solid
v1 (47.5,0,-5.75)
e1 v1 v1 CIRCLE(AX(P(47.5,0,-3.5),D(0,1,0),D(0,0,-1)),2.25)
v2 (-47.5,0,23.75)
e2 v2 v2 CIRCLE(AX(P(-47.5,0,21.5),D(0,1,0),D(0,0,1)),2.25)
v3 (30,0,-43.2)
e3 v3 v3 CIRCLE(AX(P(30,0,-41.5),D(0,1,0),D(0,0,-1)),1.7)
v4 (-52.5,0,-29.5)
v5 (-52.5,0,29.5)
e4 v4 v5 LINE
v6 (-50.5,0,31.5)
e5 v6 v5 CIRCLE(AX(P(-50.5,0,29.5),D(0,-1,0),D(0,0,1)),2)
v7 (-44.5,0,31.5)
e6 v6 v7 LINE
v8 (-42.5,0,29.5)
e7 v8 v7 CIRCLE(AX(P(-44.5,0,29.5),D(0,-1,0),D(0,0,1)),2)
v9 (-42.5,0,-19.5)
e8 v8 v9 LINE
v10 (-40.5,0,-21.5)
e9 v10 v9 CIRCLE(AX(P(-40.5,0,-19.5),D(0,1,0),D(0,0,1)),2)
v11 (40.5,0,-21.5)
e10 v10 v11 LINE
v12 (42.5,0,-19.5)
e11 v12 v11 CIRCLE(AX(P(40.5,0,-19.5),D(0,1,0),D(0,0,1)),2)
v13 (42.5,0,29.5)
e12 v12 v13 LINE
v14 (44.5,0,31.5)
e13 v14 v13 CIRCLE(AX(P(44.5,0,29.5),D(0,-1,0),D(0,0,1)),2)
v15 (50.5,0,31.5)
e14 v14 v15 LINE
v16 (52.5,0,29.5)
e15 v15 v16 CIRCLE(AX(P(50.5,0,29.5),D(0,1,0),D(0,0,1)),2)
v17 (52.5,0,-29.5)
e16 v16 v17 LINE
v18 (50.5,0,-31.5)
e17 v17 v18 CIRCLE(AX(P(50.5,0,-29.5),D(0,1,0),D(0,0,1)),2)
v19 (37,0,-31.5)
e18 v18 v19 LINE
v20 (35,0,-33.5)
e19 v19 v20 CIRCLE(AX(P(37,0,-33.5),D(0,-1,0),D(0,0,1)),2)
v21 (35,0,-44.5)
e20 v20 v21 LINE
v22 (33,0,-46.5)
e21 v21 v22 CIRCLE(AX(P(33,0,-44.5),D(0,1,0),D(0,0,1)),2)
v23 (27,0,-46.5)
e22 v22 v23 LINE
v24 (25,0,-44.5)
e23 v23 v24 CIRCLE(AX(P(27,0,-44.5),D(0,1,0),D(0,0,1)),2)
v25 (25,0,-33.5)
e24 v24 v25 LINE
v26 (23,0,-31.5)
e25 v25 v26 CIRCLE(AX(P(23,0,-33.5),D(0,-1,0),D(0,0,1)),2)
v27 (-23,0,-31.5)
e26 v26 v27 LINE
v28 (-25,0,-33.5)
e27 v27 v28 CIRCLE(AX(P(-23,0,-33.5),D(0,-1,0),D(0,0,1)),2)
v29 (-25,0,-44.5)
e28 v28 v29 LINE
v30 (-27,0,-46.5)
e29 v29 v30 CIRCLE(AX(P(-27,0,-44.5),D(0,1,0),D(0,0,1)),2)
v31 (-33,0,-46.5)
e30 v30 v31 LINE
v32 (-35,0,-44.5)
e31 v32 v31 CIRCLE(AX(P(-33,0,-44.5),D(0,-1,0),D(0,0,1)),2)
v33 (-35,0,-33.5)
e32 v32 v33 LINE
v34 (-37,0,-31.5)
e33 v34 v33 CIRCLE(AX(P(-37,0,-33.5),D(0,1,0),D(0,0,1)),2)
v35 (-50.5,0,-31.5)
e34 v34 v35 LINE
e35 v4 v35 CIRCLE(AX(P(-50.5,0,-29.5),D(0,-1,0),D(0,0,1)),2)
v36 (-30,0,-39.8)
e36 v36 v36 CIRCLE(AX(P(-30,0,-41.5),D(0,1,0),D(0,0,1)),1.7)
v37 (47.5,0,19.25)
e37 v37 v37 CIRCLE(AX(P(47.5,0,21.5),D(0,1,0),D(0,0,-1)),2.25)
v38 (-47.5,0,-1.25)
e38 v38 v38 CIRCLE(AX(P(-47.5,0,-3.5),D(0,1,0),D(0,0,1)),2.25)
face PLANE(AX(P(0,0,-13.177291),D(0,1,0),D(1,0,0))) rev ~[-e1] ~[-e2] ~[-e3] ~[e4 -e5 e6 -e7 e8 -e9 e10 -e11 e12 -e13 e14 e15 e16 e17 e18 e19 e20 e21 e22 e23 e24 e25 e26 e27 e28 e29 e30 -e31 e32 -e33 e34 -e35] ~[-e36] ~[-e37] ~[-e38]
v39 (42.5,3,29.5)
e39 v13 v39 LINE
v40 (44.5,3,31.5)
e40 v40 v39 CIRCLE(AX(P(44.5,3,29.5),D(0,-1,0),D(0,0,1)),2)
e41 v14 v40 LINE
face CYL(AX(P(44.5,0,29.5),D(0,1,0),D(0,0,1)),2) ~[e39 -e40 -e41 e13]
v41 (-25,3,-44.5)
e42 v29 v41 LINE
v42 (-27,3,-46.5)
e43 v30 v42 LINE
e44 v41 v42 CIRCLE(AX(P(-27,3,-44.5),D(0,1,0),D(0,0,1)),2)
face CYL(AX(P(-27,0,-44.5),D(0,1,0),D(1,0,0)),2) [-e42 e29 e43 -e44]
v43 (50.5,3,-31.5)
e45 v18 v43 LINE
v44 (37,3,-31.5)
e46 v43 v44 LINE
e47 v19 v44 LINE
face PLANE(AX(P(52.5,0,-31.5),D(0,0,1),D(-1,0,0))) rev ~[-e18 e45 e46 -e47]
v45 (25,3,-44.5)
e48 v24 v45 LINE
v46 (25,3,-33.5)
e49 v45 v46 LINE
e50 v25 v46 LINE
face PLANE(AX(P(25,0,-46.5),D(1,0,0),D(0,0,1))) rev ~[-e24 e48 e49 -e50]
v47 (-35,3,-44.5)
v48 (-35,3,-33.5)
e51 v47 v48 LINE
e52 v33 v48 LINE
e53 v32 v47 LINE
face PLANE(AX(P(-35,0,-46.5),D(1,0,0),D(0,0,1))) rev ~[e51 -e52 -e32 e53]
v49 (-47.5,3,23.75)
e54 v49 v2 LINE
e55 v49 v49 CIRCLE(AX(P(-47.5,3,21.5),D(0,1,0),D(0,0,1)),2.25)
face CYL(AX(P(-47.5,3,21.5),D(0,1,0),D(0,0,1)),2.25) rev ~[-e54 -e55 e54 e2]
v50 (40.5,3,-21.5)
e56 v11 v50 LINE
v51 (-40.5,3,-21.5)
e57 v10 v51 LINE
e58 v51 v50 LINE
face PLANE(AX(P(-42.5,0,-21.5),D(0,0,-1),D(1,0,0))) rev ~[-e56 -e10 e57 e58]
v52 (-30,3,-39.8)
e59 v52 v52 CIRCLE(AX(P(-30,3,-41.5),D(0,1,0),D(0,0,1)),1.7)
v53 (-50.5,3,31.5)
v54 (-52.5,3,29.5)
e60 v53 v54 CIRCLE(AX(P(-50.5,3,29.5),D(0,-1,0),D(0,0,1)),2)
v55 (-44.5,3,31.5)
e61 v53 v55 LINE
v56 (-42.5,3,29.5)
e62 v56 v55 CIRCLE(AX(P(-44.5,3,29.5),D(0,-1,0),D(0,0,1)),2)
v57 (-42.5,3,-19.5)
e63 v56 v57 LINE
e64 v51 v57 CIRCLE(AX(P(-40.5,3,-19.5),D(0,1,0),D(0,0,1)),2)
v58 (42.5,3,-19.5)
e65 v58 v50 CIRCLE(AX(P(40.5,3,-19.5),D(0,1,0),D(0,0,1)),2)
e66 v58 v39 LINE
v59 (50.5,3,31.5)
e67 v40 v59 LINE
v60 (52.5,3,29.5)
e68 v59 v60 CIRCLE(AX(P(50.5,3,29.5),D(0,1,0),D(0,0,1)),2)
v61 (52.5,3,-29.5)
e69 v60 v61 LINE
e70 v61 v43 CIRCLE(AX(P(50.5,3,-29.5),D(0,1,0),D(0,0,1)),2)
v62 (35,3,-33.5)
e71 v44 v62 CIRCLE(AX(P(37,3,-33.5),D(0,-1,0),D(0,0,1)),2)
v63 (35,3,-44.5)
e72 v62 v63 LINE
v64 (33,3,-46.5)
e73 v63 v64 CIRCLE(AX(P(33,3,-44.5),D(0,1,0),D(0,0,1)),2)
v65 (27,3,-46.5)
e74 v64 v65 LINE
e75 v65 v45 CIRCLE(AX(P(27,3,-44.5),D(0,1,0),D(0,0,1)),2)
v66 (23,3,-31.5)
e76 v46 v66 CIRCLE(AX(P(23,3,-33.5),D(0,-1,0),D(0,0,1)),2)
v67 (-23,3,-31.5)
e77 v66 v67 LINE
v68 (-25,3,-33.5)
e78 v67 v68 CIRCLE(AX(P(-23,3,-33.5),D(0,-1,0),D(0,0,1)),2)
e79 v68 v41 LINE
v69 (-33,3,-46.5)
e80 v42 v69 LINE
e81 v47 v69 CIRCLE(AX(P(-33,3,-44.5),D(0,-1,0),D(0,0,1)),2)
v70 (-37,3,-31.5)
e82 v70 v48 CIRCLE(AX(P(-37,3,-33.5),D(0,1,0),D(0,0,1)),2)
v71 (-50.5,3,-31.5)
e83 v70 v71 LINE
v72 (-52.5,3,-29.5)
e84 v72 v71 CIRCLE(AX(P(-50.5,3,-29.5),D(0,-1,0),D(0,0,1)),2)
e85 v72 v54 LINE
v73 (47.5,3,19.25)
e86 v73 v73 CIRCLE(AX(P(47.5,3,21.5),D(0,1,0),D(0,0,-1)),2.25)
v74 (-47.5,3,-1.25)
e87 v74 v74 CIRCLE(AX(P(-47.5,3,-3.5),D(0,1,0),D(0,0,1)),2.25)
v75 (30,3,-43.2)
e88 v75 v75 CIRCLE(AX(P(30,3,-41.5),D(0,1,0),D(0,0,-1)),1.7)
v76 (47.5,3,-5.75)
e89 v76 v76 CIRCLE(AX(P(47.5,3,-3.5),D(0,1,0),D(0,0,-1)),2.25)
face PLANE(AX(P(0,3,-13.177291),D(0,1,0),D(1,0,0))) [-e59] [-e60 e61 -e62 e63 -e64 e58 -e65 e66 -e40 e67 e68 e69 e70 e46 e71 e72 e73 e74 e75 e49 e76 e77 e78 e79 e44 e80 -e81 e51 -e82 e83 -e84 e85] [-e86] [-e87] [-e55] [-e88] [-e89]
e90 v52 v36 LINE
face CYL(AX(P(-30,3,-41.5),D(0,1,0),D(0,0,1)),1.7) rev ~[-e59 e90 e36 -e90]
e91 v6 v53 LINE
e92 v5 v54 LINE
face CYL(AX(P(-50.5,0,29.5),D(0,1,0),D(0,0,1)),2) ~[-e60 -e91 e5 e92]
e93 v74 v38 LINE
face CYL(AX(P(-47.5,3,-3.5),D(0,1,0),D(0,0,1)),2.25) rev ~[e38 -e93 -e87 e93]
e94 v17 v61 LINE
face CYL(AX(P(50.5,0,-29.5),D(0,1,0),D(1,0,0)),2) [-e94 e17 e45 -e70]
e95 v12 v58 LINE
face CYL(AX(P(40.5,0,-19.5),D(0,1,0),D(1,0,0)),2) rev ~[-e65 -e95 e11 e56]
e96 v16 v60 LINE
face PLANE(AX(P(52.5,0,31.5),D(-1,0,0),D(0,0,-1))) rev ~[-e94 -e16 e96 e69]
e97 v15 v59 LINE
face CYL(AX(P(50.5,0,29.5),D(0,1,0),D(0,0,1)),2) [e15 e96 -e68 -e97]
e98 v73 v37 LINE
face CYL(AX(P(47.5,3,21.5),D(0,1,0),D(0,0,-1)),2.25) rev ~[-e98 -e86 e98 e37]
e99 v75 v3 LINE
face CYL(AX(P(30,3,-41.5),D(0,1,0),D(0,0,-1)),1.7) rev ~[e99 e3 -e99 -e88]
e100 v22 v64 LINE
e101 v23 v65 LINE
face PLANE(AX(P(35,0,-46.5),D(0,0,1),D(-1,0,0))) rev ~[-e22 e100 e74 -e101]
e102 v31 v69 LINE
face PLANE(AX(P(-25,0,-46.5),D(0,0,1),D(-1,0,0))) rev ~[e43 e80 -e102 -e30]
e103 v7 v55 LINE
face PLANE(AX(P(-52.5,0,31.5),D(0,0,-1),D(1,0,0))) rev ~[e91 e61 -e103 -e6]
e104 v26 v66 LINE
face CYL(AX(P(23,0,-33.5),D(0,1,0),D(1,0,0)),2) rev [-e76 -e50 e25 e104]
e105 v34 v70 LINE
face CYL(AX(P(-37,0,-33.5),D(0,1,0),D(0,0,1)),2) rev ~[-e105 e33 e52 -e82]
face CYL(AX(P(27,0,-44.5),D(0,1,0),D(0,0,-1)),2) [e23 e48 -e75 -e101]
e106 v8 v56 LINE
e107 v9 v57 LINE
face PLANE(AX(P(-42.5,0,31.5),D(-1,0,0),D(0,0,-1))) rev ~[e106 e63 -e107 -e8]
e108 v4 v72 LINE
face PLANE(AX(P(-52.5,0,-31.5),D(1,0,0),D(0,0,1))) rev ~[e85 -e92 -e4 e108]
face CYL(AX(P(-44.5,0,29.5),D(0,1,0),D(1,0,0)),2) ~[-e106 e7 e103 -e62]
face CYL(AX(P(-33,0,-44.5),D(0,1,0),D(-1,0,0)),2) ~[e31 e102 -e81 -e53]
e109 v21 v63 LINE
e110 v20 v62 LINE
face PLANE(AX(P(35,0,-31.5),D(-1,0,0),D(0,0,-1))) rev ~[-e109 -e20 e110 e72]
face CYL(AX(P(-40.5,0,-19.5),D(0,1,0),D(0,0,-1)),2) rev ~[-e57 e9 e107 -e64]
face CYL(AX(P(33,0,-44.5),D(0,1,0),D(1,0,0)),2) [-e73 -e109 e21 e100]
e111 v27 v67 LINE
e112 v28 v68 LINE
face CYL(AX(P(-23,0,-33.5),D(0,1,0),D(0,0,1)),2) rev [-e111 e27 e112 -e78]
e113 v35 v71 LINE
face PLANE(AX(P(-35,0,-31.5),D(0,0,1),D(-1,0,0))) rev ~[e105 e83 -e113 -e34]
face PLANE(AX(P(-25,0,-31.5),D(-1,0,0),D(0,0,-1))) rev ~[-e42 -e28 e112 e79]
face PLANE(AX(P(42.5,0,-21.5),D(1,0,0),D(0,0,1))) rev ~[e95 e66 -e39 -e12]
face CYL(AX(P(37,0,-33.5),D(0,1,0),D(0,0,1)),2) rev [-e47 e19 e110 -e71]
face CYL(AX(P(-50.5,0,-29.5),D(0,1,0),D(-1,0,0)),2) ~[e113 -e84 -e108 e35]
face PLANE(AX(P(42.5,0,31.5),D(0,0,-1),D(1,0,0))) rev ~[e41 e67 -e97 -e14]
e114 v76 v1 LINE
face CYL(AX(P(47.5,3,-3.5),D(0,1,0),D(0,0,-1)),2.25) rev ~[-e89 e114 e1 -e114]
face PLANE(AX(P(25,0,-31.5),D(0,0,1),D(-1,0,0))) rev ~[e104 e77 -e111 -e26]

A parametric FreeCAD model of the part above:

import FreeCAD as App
import Part
import Sketcher
Q = App.Units.Quantity


def edges_at(feature, points):
    """Names of the edges that pass closest to the given points."""
    edges = feature.Shape.Edges
    near = lambda p: min(range(len(edges)), key=lambda i: edges[i].distToShape(Part.Vertex(*p))[0])
    return sorted({f"Edge{near(p) + 1}" for p in points})

doc = App.newDocument("Part")
body = doc.addObject("PartDesign::Body", "Body")

# Sketch on XZ plane
sketch1 = body.newObject("Sketcher::SketchObject", "Sketch")
sketch1.AttachmentSupport = (doc.getObject("XZ_Plane"), [""])
sketch1.MapMode = "FlatFace"
sketch1.addGeometry(Part.LineSegment(App.Vector(42, 32, 0), App.Vector(52, 32, 0)), False)
sketch1.addGeometry(Part.LineSegment(App.Vector(52, 32, 0), App.Vector(52, -32, 0)), False)
sketch1.addGeometry(Part.LineSegment(App.Vector(52, -32, 0), App.Vector(35, -32, 0)), False)
sketch1.addGeometry(Part.LineSegment(App.Vector(35, -32, 0), App.Vector(35, -46, 0)), False)
sketch1.addGeometry(Part.LineSegment(App.Vector(35, -46, 0), App.Vector(25, -46, 0)), False)
sketch1.addGeometry(Part.LineSegment(App.Vector(25, -46, 0), App.Vector(25, -32, 0)), False)
sketch1.addGeometry(Part.LineSegment(App.Vector(25, -32, 0), App.Vector(-25, -32, 0)), False)
sketch1.addGeometry(Part.LineSegment(App.Vector(-25, -32, 0), App.Vector(-25, -46, 0)), False)
sketch1.addGeometry(Part.LineSegment(App.Vector(-25, -46, 0), App.Vector(-35, -46, 0)), False)
sketch1.addGeometry(Part.LineSegment(App.Vector(-35, -46, 0), App.Vector(-35, -32, 0)), False)
sketch1.addGeometry(Part.LineSegment(App.Vector(-35, -32, 0), App.Vector(-52, -32, 0)), False)
sketch1.addGeometry(Part.LineSegment(App.Vector(-52, -32, 0), App.Vector(-52, 32, 0)), False)
sketch1.addGeometry(Part.LineSegment(App.Vector(-52, 32, 0), App.Vector(-42, 32, 0)), False)
sketch1.addGeometry(Part.LineSegment(App.Vector(-42, 32, 0), App.Vector(-42, -22, 0)), False)
sketch1.addGeometry(Part.LineSegment(App.Vector(-42, -22, 0), App.Vector(42, -22, 0)), False)
sketch1.addGeometry(Part.LineSegment(App.Vector(42, -22, 0), App.Vector(42, 32, 0)), False)
sketch1.addConstraint(Sketcher.Constraint("Coincident", 0, 2, 1, 1))
sketch1.addConstraint(Sketcher.Constraint("Coincident", 1, 2, 2, 1))
sketch1.addConstraint(Sketcher.Constraint("Coincident", 2, 2, 3, 1))
sketch1.addConstraint(Sketcher.Constraint("Coincident", 3, 2, 4, 1))
sketch1.addConstraint(Sketcher.Constraint("Coincident", 4, 2, 5, 1))
sketch1.addConstraint(Sketcher.Constraint("Coincident", 5, 2, 6, 1))
sketch1.addConstraint(Sketcher.Constraint("Coincident", 6, 2, 7, 1))
sketch1.addConstraint(Sketcher.Constraint("Coincident", 7, 2, 8, 1))
sketch1.addConstraint(Sketcher.Constraint("Coincident", 8, 2, 9, 1))
sketch1.addConstraint(Sketcher.Constraint("Coincident", 9, 2, 10, 1))
sketch1.addConstraint(Sketcher.Constraint("Coincident", 10, 2, 11, 1))
sketch1.addConstraint(Sketcher.Constraint("Coincident", 11, 2, 12, 1))
sketch1.addConstraint(Sketcher.Constraint("Coincident", 12, 2, 13, 1))
sketch1.addConstraint(Sketcher.Constraint("Coincident", 13, 2, 14, 1))
sketch1.addConstraint(Sketcher.Constraint("Coincident", 14, 2, 15, 1))
sketch1.addConstraint(Sketcher.Constraint("Coincident", 15, 2, 0, 1))
sketch1.addConstraint(Sketcher.Constraint("Horizontal", 0))
sketch1.addConstraint(Sketcher.Constraint("Vertical", 1))
sketch1.addConstraint(Sketcher.Constraint("Horizontal", 2))
sketch1.addConstraint(Sketcher.Constraint("Vertical", 3))
sketch1.addConstraint(Sketcher.Constraint("Horizontal", 4))
sketch1.addConstraint(Sketcher.Constraint("Vertical", 5))
sketch1.addConstraint(Sketcher.Constraint("Horizontal", 6))
sketch1.addConstraint(Sketcher.Constraint("Vertical", 7))
sketch1.addConstraint(Sketcher.Constraint("Horizontal", 8))
sketch1.addConstraint(Sketcher.Constraint("Vertical", 9))
sketch1.addConstraint(Sketcher.Constraint("Horizontal", 10))
sketch1.addConstraint(Sketcher.Constraint("Vertical", 11))
sketch1.addConstraint(Sketcher.Constraint("Horizontal", 12))
sketch1.addConstraint(Sketcher.Constraint("Vertical", 13))
sketch1.addConstraint(Sketcher.Constraint("Horizontal", 14))
sketch1.addConstraint(Sketcher.Constraint("Vertical", 15))
sketch1.addConstraint(Sketcher.Constraint("Symmetric", 0, 2, 10, 2, -1, 1))
sketch1.addConstraint(Sketcher.Constraint("Symmetric", 4, 2, 7, 2, -2))
sketch1.addConstraint(Sketcher.Constraint("Symmetric", 2, 2, 9, 2, -2))
sketch1.addConstraint(Sketcher.Constraint("Symmetric", 12, 2, 15, 2, -2))
sketch1.addConstraint(Sketcher.Constraint("Horizontal", 2, 2, 5, 2))
sketch1.addConstraint(Sketcher.Constraint("Equal", 0, 4))
sketch1.addConstraint(Sketcher.Constraint("DistanceX", 0, 1, 0, 2, Q("10 mm")))
sketch1.addConstraint(Sketcher.Constraint("DistanceX", 6, 2, 6, 1, Q("50 mm")))
sketch1.addConstraint(Sketcher.Constraint("DistanceX", 14, 1, 14, 2, Q("85 mm")))
sketch1.addConstraint(Sketcher.Constraint("DistanceY", 1, 2, 1, 1, Q("63 mm")))
sketch1.addConstraint(Sketcher.Constraint("DistanceY", 3, 2, 3, 1, Q("15 mm")))
sketch1.addConstraint(Sketcher.Constraint("DistanceY", 13, 2, 13, 1, Q("53 mm")))
pad1 = body.newObject("PartDesign::Pad", "Pad")
pad1.Profile = sketch1
pad1.Length = 3
pad1.Reversed = True

# Sketch on XZ plane
sketch2 = body.newObject("Sketcher::SketchObject", "Sketch001")
sketch2.AttachmentSupport = (doc.getObject("XZ_Plane"), [""])
sketch2.MapMode = "FlatFace"
sketch2.AttachmentOffset = App.Placement(App.Vector(0, 0, -3), App.Rotation())
sketch2.addGeometry(Part.Circle(App.Vector(-47.5, 21.5, 0), App.Vector(0, 0, 1), 2.2), False)
sketch2.addGeometry(Part.Circle(App.Vector(-47.5, -3.5, 0), App.Vector(0, 0, 1), 2.2), False)
sketch2.addGeometry(Part.Circle(App.Vector(-30, -41.5, 0), App.Vector(0, 0, 1), 1.7), False)
sketch2.addGeometry(Part.Circle(App.Vector(47.5, 21.5, 0), App.Vector(0, 0, 1), 2.2), False)
sketch2.addGeometry(Part.Circle(App.Vector(47.5, -3.5, 0), App.Vector(0, 0, 1), 2.2), False)
sketch2.addGeometry(Part.Circle(App.Vector(30, -41.5, 0), App.Vector(0, 0, 1), 1.7), False)
sketch2.addConstraint(Sketcher.Constraint("Equal", 0, 1))
sketch2.addConstraint(Sketcher.Constraint("Equal", 1, 3))
sketch2.addConstraint(Sketcher.Constraint("Equal", 3, 4))
sketch2.addConstraint(Sketcher.Constraint("Equal", 2, 5))
sketch2.addConstraint(Sketcher.Constraint("Symmetric", 0, 3, 3, 3, -2))
sketch2.addConstraint(Sketcher.Constraint("Symmetric", 1, 3, 4, 3, -2))
sketch2.addConstraint(Sketcher.Constraint("Symmetric", 2, 3, 5, 3, -2))
sketch2.addConstraint(Sketcher.Constraint("Vertical", 0, 3, 1, 3))
sketch2.addConstraint(Sketcher.Constraint("Diameter", 0, Q("4.5 mm")))
sketch2.addConstraint(Sketcher.Constraint("Diameter", 2, Q("3.4 mm")))
sketch2.addConstraint(Sketcher.Constraint("DistanceX", 2, 3, -1, 1, Q("30 mm")))
sketch2.addConstraint(Sketcher.Constraint("DistanceY", 1, 3, 0, 3, Q("25 mm")))
sketch2.addConstraint(Sketcher.Constraint("DistanceY", 2, 3, 1, 3, Q("38 mm")))
sketch2.addConstraint(Sketcher.Constraint("DistanceX", 0, 3, 3, 3, Q("95 mm")))
sketch2.addConstraint(Sketcher.Constraint("DistanceY", -1, 1, 0, 3, Q("21.5 mm")))
pocket1 = body.newObject("PartDesign::Pocket", "Pocket")
pocket1.Profile = sketch2
pocket1.Length = 3
pocket1.Reversed = True
doc.recompute()

fillet = body.newObject("PartDesign::Fillet", "Fillet")
fillet.Base = (pocket1, edges_at(pocket1, [
    (52.5, 1.5, -31.5),
    (52.5, 1.5, 31.5),
    (42.5, 1.5, 31.5),
    (42.5, 1.5, -21.5),
    (-42.5, 1.5, -21.5),
    (-42.5, 1.5, 31.5),
    (-52.5, 1.5, 31.5),
    (-52.5, 1.5, -31.5),
    (-35, 1.5, -31.5),
    (-35, 1.5, -46.5),
    (-25, 1.5, -46.5),
    (-25, 1.5, -31.5),
    (25, 1.5, -31.5),
    (25, 1.5, -46.5),
    (35, 1.5, -46.5),
    (35, 1.5, -31.5),
]))
fillet.Radius = 2

doc.recompute()
